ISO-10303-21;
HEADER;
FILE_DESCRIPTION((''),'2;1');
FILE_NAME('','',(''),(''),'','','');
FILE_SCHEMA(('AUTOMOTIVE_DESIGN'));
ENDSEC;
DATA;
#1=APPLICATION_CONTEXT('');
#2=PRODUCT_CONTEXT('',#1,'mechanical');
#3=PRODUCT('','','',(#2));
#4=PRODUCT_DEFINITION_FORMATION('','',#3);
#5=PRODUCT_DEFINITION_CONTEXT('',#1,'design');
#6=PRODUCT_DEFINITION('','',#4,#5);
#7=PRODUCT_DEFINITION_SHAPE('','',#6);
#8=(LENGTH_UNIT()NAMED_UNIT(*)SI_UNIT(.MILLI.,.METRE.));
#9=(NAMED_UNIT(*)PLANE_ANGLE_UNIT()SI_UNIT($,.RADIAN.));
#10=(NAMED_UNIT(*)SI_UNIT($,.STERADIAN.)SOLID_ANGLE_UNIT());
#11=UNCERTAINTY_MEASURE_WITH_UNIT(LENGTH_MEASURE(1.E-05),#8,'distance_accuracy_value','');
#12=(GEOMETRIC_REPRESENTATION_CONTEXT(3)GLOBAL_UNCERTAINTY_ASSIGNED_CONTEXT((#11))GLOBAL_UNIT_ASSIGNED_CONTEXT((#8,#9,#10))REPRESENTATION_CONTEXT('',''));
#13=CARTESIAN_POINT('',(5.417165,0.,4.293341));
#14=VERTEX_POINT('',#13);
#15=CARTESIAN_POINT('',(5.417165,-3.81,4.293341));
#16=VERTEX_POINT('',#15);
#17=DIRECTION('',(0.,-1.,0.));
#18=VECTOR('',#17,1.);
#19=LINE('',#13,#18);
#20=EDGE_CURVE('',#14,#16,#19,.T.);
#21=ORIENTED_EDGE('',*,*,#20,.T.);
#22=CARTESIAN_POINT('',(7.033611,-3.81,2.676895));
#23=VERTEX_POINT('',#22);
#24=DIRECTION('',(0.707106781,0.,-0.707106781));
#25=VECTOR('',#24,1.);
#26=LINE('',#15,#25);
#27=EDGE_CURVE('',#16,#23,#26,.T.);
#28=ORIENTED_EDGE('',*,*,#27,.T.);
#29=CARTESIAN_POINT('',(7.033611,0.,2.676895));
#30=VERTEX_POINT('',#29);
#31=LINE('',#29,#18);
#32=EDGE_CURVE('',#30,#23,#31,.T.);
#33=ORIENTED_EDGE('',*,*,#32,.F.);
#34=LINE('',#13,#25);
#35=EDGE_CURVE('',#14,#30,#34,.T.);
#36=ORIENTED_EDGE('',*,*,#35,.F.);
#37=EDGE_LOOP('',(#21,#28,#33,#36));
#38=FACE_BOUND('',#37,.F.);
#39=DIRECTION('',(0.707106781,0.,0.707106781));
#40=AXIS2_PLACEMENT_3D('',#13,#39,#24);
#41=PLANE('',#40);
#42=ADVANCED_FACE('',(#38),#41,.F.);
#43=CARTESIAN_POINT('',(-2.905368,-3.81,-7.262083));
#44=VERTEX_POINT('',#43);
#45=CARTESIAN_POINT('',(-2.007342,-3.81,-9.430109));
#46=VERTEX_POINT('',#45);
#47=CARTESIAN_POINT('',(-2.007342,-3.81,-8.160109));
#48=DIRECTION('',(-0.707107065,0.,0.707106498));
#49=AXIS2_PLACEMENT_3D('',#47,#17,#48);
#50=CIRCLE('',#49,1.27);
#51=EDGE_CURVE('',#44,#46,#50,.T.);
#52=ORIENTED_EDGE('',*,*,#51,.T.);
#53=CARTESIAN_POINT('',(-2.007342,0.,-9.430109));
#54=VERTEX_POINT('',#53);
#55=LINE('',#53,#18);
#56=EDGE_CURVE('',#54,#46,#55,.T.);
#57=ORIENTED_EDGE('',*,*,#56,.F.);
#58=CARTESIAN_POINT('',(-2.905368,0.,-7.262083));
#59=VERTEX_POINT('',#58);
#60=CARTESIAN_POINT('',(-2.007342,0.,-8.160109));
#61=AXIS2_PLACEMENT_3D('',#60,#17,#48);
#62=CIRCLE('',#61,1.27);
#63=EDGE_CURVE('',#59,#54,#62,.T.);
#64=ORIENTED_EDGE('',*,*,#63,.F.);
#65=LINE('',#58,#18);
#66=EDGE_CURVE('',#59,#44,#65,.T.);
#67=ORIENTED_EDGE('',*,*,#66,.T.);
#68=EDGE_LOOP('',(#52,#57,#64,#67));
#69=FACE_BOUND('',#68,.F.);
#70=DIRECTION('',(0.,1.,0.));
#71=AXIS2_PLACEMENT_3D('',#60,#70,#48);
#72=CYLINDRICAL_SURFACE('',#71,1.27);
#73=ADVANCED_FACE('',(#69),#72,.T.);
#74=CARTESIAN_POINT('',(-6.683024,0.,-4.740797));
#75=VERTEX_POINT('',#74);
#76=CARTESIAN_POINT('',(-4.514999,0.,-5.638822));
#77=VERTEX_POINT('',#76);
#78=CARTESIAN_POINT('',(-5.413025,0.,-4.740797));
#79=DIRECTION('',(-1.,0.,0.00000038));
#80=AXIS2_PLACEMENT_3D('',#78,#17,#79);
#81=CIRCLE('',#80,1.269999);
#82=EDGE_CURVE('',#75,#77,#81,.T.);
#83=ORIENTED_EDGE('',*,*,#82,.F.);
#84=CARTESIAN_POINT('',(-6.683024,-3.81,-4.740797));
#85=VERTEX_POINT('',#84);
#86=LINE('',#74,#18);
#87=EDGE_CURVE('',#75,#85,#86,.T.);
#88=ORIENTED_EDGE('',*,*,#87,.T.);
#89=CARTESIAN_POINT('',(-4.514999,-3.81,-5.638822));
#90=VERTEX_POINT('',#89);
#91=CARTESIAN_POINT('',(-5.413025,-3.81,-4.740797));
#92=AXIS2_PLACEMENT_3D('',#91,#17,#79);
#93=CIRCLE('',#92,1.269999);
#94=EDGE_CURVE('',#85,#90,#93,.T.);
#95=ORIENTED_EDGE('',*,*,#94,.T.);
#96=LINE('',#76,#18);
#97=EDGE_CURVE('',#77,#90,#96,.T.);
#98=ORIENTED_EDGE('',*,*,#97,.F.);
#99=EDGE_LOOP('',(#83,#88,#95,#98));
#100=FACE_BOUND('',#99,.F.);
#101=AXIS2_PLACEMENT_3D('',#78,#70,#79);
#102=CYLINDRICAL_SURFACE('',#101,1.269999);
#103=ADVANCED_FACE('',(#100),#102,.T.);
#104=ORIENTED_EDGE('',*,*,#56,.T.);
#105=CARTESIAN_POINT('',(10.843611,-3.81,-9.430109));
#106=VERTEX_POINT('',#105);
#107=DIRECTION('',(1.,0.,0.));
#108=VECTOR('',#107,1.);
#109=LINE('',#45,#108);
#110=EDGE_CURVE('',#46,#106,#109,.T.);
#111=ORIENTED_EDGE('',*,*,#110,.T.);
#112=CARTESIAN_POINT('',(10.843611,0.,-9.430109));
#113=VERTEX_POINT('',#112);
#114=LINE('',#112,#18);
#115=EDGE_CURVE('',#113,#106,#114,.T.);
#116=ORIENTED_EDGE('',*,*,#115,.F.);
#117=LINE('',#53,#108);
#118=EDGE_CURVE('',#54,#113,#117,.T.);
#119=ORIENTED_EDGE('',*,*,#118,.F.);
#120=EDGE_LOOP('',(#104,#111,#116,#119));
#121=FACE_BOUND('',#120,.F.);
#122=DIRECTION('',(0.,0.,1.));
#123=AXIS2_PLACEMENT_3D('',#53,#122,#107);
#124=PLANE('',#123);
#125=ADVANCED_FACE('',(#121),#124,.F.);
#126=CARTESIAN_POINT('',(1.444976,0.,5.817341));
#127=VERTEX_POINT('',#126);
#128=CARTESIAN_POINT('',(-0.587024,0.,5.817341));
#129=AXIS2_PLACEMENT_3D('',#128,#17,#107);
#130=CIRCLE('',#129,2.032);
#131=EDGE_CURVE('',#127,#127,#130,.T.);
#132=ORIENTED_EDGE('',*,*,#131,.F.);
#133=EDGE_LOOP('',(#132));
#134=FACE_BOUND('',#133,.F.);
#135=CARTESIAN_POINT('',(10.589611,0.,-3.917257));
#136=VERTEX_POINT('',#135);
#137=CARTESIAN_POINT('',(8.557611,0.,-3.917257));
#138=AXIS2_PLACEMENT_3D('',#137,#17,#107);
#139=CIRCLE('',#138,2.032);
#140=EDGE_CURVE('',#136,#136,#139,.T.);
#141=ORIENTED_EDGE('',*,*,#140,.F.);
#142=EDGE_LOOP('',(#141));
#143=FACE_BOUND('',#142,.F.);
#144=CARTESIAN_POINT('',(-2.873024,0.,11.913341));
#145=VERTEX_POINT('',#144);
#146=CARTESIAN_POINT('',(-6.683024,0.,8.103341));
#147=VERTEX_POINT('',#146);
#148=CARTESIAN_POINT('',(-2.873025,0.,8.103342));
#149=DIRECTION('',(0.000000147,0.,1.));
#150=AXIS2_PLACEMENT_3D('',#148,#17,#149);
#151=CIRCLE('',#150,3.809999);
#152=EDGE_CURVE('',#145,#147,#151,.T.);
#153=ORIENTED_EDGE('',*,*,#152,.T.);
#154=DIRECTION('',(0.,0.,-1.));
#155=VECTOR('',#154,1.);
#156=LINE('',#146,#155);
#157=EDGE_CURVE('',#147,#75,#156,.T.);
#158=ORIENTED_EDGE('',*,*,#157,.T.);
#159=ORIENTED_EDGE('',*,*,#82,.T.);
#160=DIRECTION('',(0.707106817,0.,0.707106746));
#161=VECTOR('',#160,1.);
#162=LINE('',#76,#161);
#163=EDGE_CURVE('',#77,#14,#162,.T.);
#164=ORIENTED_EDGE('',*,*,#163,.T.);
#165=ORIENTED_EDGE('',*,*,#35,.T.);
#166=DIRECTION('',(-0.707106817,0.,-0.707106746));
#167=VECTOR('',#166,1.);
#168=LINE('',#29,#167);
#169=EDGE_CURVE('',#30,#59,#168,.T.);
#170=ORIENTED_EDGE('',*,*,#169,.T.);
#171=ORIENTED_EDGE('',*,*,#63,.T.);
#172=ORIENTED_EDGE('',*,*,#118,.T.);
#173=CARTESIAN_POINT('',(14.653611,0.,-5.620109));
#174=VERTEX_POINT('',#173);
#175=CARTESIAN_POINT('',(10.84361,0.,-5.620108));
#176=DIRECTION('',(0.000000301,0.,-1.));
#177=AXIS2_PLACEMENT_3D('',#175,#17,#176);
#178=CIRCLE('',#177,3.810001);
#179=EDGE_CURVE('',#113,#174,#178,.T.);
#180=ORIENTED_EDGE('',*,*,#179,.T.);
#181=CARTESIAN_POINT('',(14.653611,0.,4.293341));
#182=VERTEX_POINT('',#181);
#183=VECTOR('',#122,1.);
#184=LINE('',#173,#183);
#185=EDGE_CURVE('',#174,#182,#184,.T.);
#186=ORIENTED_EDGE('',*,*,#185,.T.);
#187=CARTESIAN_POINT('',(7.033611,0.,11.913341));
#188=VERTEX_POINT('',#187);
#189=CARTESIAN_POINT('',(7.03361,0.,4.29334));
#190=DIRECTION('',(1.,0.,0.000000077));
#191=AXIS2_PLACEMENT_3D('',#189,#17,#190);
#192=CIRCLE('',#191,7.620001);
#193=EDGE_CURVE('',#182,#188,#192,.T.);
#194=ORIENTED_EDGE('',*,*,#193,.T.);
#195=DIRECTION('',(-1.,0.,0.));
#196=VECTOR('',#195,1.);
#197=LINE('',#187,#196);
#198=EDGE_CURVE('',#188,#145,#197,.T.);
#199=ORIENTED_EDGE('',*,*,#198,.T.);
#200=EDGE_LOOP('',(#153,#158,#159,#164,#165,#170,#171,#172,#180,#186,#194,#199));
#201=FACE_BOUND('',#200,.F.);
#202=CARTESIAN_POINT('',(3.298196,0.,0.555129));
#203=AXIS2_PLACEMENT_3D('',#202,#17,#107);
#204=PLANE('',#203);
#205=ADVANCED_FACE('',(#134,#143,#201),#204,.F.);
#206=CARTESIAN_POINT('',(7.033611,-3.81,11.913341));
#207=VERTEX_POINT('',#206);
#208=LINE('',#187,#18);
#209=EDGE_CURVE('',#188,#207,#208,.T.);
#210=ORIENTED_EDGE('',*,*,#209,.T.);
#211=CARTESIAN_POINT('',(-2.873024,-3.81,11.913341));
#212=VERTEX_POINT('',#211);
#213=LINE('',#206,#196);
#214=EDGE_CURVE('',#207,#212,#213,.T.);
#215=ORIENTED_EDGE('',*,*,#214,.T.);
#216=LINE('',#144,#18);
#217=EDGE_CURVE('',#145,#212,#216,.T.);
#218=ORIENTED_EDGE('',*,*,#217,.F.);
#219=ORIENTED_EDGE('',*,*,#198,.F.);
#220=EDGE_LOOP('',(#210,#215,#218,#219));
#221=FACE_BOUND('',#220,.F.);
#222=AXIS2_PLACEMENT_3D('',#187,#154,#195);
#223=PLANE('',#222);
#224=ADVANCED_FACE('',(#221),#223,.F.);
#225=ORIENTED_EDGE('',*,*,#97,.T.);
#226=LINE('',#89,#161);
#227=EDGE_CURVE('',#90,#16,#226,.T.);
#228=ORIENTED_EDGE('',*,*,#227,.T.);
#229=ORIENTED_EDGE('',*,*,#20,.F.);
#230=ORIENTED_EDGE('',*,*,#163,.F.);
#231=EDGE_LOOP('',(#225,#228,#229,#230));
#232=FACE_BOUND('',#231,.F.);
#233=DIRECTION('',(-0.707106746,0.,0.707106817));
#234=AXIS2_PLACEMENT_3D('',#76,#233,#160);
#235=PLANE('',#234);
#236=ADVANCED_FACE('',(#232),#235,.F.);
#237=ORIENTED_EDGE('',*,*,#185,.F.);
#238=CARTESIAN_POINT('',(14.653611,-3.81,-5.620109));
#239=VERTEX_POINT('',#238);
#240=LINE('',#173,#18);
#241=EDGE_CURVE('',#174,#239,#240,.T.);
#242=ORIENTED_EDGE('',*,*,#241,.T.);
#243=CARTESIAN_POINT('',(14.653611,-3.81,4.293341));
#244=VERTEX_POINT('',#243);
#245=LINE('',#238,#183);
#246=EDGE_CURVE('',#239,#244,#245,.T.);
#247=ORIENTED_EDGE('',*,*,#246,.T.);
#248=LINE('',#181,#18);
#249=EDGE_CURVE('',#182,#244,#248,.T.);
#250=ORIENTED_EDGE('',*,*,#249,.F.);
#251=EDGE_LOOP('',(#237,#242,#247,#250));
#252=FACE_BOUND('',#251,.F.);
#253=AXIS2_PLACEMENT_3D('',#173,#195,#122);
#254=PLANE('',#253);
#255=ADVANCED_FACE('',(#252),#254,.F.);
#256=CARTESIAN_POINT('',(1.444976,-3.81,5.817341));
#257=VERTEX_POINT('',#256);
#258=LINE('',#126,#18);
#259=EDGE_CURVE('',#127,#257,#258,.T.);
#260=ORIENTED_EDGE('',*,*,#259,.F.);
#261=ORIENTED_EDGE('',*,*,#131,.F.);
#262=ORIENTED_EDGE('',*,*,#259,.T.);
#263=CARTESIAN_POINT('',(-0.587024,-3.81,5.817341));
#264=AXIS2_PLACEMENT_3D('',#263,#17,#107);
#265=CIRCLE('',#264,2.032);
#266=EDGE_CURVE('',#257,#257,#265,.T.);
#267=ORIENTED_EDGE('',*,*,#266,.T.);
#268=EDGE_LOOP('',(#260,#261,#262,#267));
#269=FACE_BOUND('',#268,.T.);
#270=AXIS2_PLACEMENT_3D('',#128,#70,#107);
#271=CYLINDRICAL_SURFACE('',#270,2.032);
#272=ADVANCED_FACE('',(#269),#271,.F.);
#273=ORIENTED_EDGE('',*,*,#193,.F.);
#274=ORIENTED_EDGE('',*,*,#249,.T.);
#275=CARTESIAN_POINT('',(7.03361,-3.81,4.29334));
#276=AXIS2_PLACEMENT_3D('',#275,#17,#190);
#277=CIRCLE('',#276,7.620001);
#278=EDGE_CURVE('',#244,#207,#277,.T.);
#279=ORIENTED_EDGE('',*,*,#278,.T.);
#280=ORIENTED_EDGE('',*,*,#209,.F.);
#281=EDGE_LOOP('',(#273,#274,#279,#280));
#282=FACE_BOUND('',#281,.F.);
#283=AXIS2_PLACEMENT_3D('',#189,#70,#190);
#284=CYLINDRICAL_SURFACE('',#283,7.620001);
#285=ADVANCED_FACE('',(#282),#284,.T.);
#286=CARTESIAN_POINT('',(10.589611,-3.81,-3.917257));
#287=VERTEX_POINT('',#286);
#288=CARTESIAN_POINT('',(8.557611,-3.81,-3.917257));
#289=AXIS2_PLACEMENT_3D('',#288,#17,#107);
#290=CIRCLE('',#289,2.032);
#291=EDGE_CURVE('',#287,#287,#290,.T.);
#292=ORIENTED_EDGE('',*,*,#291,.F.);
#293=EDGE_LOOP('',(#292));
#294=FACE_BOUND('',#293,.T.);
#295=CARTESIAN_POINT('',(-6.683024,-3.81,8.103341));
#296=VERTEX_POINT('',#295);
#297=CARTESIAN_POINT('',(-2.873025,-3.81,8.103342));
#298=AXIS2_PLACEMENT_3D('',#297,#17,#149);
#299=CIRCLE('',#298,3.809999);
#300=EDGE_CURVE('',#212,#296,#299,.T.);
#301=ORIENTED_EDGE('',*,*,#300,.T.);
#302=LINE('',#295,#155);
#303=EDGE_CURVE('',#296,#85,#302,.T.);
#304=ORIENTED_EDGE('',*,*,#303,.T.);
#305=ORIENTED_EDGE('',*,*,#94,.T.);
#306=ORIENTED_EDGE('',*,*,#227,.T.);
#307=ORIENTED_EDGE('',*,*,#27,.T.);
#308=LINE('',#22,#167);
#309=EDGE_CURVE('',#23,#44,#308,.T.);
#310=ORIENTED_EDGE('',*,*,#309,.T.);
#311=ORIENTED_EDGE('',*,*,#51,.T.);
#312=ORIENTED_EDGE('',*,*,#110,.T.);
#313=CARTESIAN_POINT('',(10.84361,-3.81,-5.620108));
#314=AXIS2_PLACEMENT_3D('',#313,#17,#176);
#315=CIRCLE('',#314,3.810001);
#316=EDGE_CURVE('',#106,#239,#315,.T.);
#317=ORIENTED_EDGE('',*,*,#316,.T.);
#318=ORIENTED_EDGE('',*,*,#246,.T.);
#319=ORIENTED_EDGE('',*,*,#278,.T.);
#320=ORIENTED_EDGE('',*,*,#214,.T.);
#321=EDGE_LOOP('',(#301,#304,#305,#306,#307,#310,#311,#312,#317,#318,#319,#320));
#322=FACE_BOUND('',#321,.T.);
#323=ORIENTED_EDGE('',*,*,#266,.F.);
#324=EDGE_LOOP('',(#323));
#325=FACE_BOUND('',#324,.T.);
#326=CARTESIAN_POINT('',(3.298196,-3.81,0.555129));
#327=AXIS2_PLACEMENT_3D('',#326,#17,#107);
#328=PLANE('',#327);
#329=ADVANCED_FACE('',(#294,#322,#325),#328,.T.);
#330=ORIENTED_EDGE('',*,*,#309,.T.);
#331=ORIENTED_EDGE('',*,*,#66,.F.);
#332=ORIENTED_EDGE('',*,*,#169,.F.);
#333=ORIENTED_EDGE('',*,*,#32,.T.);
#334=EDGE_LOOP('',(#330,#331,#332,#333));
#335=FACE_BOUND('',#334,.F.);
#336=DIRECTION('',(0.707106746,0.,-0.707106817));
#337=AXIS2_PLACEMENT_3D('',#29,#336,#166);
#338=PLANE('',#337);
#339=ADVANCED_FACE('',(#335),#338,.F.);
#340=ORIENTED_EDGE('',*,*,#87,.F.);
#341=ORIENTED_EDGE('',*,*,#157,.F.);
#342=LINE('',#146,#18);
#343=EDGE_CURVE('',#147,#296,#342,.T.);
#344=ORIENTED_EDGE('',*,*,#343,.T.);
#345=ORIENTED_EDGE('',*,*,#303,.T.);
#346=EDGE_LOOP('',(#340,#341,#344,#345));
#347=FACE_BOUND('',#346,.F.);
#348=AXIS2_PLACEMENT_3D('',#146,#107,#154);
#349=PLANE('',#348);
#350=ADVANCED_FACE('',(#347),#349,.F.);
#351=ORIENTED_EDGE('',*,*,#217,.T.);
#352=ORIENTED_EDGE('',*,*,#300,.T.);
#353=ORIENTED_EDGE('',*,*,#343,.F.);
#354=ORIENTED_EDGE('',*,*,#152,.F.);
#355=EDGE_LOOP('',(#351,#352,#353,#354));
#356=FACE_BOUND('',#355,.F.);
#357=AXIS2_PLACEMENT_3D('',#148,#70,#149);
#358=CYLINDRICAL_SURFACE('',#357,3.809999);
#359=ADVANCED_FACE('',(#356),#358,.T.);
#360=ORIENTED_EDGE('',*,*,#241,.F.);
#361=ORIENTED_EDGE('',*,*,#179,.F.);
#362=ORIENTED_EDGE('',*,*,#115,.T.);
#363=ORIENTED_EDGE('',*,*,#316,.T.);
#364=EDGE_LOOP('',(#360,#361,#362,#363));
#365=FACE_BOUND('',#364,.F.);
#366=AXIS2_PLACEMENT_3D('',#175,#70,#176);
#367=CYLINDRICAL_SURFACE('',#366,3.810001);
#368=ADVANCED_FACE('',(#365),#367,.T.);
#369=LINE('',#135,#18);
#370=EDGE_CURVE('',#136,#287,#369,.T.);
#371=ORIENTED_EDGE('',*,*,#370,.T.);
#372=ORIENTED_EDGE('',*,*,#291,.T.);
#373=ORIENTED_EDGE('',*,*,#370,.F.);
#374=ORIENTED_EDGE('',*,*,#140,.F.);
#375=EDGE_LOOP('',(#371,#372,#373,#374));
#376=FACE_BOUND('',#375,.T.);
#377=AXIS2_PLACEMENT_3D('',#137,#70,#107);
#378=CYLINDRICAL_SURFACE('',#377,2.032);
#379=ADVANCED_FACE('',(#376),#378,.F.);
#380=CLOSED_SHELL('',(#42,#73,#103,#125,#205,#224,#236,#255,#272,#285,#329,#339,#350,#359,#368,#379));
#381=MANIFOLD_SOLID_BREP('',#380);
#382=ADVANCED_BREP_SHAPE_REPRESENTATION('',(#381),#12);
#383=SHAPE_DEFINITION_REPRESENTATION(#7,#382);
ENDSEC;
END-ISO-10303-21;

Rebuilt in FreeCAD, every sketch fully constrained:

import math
import FreeCAD as App
import Part
import Sketcher
Q = App.Units.Quantity

doc = App.newDocument("Part")
params = doc.addObject("Spreadsheet::Sheet", "Params")
for row, (alias, value) in enumerate([
    ("sketch1_radius", "0.3 in"),
    ("sketch1_diameter", "0.16 in"),
    ("sketch1_radius2", "0.05 in"),
    ("sketch1_radius3", "0.15 in"),
    ("sketch1_length", "0.09 in"),
    ("pad1_length", "0.15 in"),
], start=1):
    params.set(f"A{row}", alias)
    params.set(f"B{row}", "=" + value)
    params.setAlias(f"B{row}", alias)

body = doc.addObject("PartDesign::Body", "Body")

sketch1 = doc.addObject("Sketcher::SketchObject", "Sketch")
body.addObject(sketch1)
sketch1.AttachmentSupport = (doc.XZ_Plane, [""])
sketch1.MapMode = "FlatFace"
sketch1.addGeometry([
    Part.ArcOfCircle(Part.Circle(App.Vector(-5.4, -4.7, 0), App.Vector(0, 0, 1), 1.3), math.radians(180), math.radians(315)),
    Part.LineSegment(App.Vector(-4.5, -5.6, 0), App.Vector(5.4, 4.3, 0)),
    Part.LineSegment(App.Vector(5.4, 4.3, 0), App.Vector(7, 2.7, 0)),
    Part.LineSegment(App.Vector(7, 2.7, 0), App.Vector(-2.9, -7.3, 0)),
    Part.ArcOfCircle(Part.Circle(App.Vector(-2, -8.2, 0), App.Vector(0, 0, 1), 1.3), math.radians(135), math.radians(270)),
    Part.LineSegment(App.Vector(-2, -9.4, 0), App.Vector(10.8, -9.4, 0)),
    Part.ArcOfCircle(Part.Circle(App.Vector(10.8, -5.6, 0), App.Vector(0, 0, 1), 3.8), math.radians(-90), math.radians(0)),
    Part.LineSegment(App.Vector(14.7, -5.6, 0), App.Vector(14.7, 4.3, 0)),
    Part.ArcOfCircle(Part.Circle(App.Vector(7, 4.3, 0), App.Vector(0, 0, 1), 7.6), math.radians(0), math.radians(90)),
    Part.LineSegment(App.Vector(7, 11.9, 0), App.Vector(-2.9, 11.9, 0)),
    Part.ArcOfCircle(Part.Circle(App.Vector(-2.9, 8.1, 0), App.Vector(0, 0, 1), 3.8), math.radians(90), math.radians(180)),
    Part.LineSegment(App.Vector(-6.7, 8.1, 0), App.Vector(-6.7, -4.7, 0)),
    Part.Circle(App.Vector(8.6, -3.9, 0), App.Vector(0, 0, 1), 2),
    Part.Circle(App.Vector(-0.6, 5.8, 0), App.Vector(0, 0, 1), 2),
], False)
sketch1.addConstraint([
    Sketcher.Constraint("Tangent", 0, 2, 1, 1),
    Sketcher.Constraint("Coincident", 1, 2, 2, 1),
    Sketcher.Constraint("Coincident", 2, 2, 3, 1),
    Sketcher.Constraint("Tangent", 3, 2, 4, 1),
    Sketcher.Constraint("Tangent", 4, 2, 5, 1),
    Sketcher.Constraint("Tangent", 5, 2, 6, 1),
    Sketcher.Constraint("Tangent", 6, 2, 7, 1),
    Sketcher.Constraint("Tangent", 7, 2, 8, 1),
    Sketcher.Constraint("Tangent", 8, 2, 9, 1),
    Sketcher.Constraint("Tangent", 9, 2, 10, 1),
    Sketcher.Constraint("Tangent", 10, 2, 11, 1),
    Sketcher.Constraint("Tangent", 11, 2, 0, 1),
    Sketcher.Constraint("Horizontal", 5),
    Sketcher.Constraint("Vertical", 7),
    Sketcher.Constraint("Horizontal", 9),
    Sketcher.Constraint("Vertical", 11),
    Sketcher.Constraint("Equal", 0, 4),
    Sketcher.Constraint("Equal", 6, 10),
    Sketcher.Constraint("Equal", 12, 13),
    Sketcher.Constraint("Perpendicular", 1, 2),
    Sketcher.Constraint("Perpendicular", 2, 3),
    Sketcher.Constraint("Horizontal", 8, 3, 1, 2),
    Sketcher.Constraint("Vertical", 8, 3, 2, 2),
    Sketcher.Constraint("Radius", 8, Q("0.3 in")),
    Sketcher.Constraint("Diameter", 12, Q("0.16 in")),
    Sketcher.Constraint("Radius", 0, Q("0.05 in")),
    Sketcher.Constraint("Radius", 6, Q("0.15 in")),
    Sketcher.Constraint("Angle", 1, Q("44.999997 deg")),
    Sketcher.Constraint("Distance", 2, Q("0.09 in")),
    Sketcher.Constraint("DistanceX", 12, 3, 6, 3, Q("0.09 in")),
    Sketcher.Constraint("DistanceX", 10, 3, 13, 3, Q("0.09 in")),
    Sketcher.Constraint("DistanceY", 13, 3, 10, 3, Q("0.09 in")),
    Sketcher.Constraint("Distance", 1, Q("0.553 in")),
    Sketcher.Constraint("DistanceY", 7, 1, 7, 2, Q("9.91345 mm")),
    Sketcher.Constraint("DistanceX", 0, 2, -1, 1, Q("4.514999 mm")),
    Sketcher.Constraint("DistanceY", 12, 3, 10, 3, Q("12.020599 mm")),
    Sketcher.Constraint("DistanceY", 4, 3, -1, 1, Q("8.160109 mm")),
])
sketch1.setExpression("Constraints[23]", "Params.sketch1_radius")
sketch1.setExpression("Constraints[24]", "Params.sketch1_diameter")
sketch1.setExpression("Constraints[25]", "Params.sketch1_radius2")
sketch1.setExpression("Constraints[26]", "Params.sketch1_radius3")
sketch1.setExpression("Constraints[28]", "Params.sketch1_length")
pad1 = doc.addObject("PartDesign::Pad", "Pad")
body.addObject(pad1)
pad1.Profile = sketch1
pad1.setExpression("Length", "Params.pad1_length")

doc.recompute()
